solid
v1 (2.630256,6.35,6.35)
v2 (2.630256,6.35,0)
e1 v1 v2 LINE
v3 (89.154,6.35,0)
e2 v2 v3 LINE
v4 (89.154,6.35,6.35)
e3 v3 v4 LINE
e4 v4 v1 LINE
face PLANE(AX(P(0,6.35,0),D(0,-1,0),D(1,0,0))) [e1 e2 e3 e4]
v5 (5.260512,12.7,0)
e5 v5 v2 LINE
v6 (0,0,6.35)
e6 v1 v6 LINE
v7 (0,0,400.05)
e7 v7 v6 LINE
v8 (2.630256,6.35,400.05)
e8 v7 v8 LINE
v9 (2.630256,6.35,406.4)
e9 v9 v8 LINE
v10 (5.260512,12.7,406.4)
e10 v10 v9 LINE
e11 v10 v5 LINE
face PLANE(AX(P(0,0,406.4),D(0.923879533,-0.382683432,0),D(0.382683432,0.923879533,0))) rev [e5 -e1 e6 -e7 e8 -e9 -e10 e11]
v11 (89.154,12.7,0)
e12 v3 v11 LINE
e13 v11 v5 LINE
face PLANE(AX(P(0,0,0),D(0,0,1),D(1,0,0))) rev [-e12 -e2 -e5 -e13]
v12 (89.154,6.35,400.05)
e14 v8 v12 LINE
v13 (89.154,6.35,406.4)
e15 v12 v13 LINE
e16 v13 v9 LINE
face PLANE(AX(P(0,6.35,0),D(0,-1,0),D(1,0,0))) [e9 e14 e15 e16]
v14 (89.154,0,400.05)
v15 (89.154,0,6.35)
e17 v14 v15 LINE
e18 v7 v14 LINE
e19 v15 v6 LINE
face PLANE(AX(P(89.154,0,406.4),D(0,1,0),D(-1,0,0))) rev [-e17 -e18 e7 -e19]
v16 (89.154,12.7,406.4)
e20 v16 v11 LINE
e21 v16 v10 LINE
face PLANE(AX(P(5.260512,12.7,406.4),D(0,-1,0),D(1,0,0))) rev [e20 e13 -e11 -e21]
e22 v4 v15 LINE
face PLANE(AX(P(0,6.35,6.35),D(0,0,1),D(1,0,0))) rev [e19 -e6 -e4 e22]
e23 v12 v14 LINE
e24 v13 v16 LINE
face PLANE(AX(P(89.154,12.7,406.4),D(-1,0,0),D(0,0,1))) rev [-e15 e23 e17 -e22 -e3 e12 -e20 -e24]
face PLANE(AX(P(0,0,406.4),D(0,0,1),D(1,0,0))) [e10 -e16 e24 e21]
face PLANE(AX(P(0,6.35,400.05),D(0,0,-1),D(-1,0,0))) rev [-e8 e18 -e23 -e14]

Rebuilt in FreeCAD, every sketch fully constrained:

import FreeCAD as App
import Part
import Sketcher

V = App.Vector
Q = App.Units.Quantity


def add_polygon(sketch, points):
    """Adds a closed chain of lines whose ends are joined by coincident constraints."""
    first, n = sketch.GeometryCount, len(points)
    for a, b in zip(points, points[1:] + points[:1]):
        sketch.addGeometry(Part.LineSegment(App.Vector(*a, 0), App.Vector(*b, 0)), False)
    for i in range(n):
        sketch.addConstraint(Sketcher.Constraint("Coincident", first + i, 2, first + (i + 1) % n, 1))

doc = App.newDocument("Part")
body = doc.addObject("PartDesign::Body", "Body")

# Sketch on XY plane
sketch1 = body.newObject("Sketcher::SketchObject", "Sketch")
sketch1.AttachmentSupport = (doc.getObject("XY_Plane"), [""])
sketch1.MapMode = "FlatFace"
add_polygon(sketch1, [(5, 13), (0, 0), (89, 0), (89, 13)])  # lines 0-3
sketch1.addConstraint([
    Sketcher.Constraint("Horizontal", 1),
    Sketcher.Constraint("Vertical", 2),
    Sketcher.Constraint("Horizontal", 3),
    Sketcher.Constraint("Coincident", 0, 2, -1, 1),
    Sketcher.Constraint("DistanceY", 2, 1, 2, 2, Q("0.5 in")),
    Sketcher.Constraint("DistanceX", 1, 1, 1, 2, Q("3.51 in")),
    Sketcher.Constraint("Angle", 0, Q("-112.5 deg")),
])
pad1 = body.newObject("PartDesign::Pad", "Pad")
pad1.Profile = sketch1
pad1.Length = Q("16 in")

# Sketch on XZ plane
sketch2 = body.newObject("Sketcher::SketchObject", "Sketch001")
sketch2.AttachmentSupport = (doc.getObject("XZ_Plane"), [""])
sketch2.MapMode = "FlatFace"
add_polygon(sketch2, [(0, 6), (0, 0), (89, 0), (89, 6)])  # lines 0-3
add_polygon(sketch2, [(0, 406), (0, 400), (89, 400), (89, 406)])  # lines 4-7
sketch2.addConstraint([
    Sketcher.Constraint("Vertical", 0),
    Sketcher.Constraint("Horizontal", 1),
    Sketcher.Constraint("Vertical", 2),
    Sketcher.Constraint("Horizontal", 3),
    Sketcher.Constraint("Vertical", 4),
    Sketcher.Constraint("Horizontal", 5),
    Sketcher.Constraint("Vertical", 6),
    Sketcher.Constraint("Horizontal", 7),
    Sketcher.Constraint("Coincident", 0, 2, -1, 1),
    Sketcher.Constraint("PointOnObject", 4, 2, -2),
    Sketcher.Constraint("Vertical", 2, 2, 5, 2),
    Sketcher.Constraint("Equal", 2, 4),
    Sketcher.Constraint("DistanceY", -1, 1, 6, 2, Q("16 in")),
    Sketcher.Constraint("DistanceX", 1, 1, 1, 2, Q("3.51 in")),
    Sketcher.Constraint("DistanceY", 0, 2, 0, 1, Q("0.25 in")),
])
pocket1 = body.newObject("PartDesign::Pocket", "Pocket")
pocket1.Profile = sketch2
pocket1.Length = Q("0.25 in")

doc.recompute()
